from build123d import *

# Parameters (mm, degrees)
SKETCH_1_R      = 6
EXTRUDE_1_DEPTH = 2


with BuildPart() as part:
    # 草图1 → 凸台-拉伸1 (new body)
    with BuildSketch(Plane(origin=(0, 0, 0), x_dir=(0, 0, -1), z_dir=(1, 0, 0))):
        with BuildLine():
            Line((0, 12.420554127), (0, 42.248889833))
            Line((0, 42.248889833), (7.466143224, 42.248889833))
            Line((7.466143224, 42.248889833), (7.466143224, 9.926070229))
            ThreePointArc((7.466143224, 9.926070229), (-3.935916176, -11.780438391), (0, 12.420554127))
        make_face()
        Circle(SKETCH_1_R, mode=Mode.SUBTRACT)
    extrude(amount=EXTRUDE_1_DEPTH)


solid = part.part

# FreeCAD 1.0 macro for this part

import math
import FreeCAD as App
import Part
import Sketcher
Q = App.Units.Quantity

doc = App.newDocument("Part")
params = doc.addObject("Spreadsheet::Sheet", "Params")
for row, (alias, value) in enumerate([
    ("sketch1_diameter", "12 mm"),
    ("pad1_length", "2 mm"),
], start=1):
    params.set(f"A{row}", alias)
    params.set(f"B{row}", "=" + value)
    params.setAlias(f"B{row}", alias)

body = doc.addObject("PartDesign::Body", "Body")

# Sketch on YZ plane
sketch1 = body.newObject("Sketcher::SketchObject", "Sketch")
sketch1.AttachmentSupport = (doc.getObject("YZ_Plane"), [""])
sketch1.MapMode = "FlatFace"
sketch1.addGeometry(Part.LineSegment(App.Vector(42, 0, 0), App.Vector(12, 0, 0)), False)
sketch1.addGeometry(Part.ArcOfCircle(Part.Circle(App.Vector(0, 0, 0), App.Vector(0, 0, 1), 12), math.radians(0), math.radians(323)), False)
sketch1.addGeometry(Part.LineSegment(App.Vector(10, -7, 0), App.Vector(42, -7, 0)), False)
sketch1.addGeometry(Part.LineSegment(App.Vector(42, -7, 0), App.Vector(42, 0, 0)), False)
sketch1.addGeometry(Part.Circle(App.Vector(0, 0, 0), App.Vector(0, 0, 1), 6), False)
sketch1.addConstraint(Sketcher.Constraint("Coincident", 0, 2, 1, 1))
sketch1.addConstraint(Sketcher.Constraint("Coincident", 1, 2, 2, 1))
sketch1.addConstraint(Sketcher.Constraint("Coincident", 2, 2, 3, 1))
sketch1.addConstraint(Sketcher.Constraint("Coincident", 3, 2, 0, 1))
sketch1.addConstraint(Sketcher.Constraint("Horizontal", 0))
sketch1.addConstraint(Sketcher.Constraint("Horizontal", 2))
sketch1.addConstraint(Sketcher.Constraint("Vertical", 3))
sketch1.addConstraint(Sketcher.Constraint("Coincident", 1, 3, -1, 1))
sketch1.addConstraint(Sketcher.Constraint("Coincident", 4, 3, -1, 1))
sketch1.addConstraint(Sketcher.Constraint("PointOnObject", 0, 2, -1))
sketch1.addConstraint(Sketcher.Constraint("Diameter", 4, Q("12 mm")))
sketch1.addConstraint(Sketcher.Constraint("Radius", 1, Q("12.420554 mm")))
sketch1.addConstraint(Sketcher.Constraint("DistanceX", 2, 1, 2, 2, Q("32.32282 mm")))
sketch1.addConstraint(Sketcher.Constraint("DistanceX", 0, 2, 0, 1, Q("29.828336 mm")))
sketch1.setExpression("Constraints[10]", "Params.sketch1_diameter")
pad1 = body.newObject("PartDesign::Pad", "Pad")
pad1.Profile = sketch1
pad1.setExpression("Length", "Params.pad1_length")

doc.recompute()
